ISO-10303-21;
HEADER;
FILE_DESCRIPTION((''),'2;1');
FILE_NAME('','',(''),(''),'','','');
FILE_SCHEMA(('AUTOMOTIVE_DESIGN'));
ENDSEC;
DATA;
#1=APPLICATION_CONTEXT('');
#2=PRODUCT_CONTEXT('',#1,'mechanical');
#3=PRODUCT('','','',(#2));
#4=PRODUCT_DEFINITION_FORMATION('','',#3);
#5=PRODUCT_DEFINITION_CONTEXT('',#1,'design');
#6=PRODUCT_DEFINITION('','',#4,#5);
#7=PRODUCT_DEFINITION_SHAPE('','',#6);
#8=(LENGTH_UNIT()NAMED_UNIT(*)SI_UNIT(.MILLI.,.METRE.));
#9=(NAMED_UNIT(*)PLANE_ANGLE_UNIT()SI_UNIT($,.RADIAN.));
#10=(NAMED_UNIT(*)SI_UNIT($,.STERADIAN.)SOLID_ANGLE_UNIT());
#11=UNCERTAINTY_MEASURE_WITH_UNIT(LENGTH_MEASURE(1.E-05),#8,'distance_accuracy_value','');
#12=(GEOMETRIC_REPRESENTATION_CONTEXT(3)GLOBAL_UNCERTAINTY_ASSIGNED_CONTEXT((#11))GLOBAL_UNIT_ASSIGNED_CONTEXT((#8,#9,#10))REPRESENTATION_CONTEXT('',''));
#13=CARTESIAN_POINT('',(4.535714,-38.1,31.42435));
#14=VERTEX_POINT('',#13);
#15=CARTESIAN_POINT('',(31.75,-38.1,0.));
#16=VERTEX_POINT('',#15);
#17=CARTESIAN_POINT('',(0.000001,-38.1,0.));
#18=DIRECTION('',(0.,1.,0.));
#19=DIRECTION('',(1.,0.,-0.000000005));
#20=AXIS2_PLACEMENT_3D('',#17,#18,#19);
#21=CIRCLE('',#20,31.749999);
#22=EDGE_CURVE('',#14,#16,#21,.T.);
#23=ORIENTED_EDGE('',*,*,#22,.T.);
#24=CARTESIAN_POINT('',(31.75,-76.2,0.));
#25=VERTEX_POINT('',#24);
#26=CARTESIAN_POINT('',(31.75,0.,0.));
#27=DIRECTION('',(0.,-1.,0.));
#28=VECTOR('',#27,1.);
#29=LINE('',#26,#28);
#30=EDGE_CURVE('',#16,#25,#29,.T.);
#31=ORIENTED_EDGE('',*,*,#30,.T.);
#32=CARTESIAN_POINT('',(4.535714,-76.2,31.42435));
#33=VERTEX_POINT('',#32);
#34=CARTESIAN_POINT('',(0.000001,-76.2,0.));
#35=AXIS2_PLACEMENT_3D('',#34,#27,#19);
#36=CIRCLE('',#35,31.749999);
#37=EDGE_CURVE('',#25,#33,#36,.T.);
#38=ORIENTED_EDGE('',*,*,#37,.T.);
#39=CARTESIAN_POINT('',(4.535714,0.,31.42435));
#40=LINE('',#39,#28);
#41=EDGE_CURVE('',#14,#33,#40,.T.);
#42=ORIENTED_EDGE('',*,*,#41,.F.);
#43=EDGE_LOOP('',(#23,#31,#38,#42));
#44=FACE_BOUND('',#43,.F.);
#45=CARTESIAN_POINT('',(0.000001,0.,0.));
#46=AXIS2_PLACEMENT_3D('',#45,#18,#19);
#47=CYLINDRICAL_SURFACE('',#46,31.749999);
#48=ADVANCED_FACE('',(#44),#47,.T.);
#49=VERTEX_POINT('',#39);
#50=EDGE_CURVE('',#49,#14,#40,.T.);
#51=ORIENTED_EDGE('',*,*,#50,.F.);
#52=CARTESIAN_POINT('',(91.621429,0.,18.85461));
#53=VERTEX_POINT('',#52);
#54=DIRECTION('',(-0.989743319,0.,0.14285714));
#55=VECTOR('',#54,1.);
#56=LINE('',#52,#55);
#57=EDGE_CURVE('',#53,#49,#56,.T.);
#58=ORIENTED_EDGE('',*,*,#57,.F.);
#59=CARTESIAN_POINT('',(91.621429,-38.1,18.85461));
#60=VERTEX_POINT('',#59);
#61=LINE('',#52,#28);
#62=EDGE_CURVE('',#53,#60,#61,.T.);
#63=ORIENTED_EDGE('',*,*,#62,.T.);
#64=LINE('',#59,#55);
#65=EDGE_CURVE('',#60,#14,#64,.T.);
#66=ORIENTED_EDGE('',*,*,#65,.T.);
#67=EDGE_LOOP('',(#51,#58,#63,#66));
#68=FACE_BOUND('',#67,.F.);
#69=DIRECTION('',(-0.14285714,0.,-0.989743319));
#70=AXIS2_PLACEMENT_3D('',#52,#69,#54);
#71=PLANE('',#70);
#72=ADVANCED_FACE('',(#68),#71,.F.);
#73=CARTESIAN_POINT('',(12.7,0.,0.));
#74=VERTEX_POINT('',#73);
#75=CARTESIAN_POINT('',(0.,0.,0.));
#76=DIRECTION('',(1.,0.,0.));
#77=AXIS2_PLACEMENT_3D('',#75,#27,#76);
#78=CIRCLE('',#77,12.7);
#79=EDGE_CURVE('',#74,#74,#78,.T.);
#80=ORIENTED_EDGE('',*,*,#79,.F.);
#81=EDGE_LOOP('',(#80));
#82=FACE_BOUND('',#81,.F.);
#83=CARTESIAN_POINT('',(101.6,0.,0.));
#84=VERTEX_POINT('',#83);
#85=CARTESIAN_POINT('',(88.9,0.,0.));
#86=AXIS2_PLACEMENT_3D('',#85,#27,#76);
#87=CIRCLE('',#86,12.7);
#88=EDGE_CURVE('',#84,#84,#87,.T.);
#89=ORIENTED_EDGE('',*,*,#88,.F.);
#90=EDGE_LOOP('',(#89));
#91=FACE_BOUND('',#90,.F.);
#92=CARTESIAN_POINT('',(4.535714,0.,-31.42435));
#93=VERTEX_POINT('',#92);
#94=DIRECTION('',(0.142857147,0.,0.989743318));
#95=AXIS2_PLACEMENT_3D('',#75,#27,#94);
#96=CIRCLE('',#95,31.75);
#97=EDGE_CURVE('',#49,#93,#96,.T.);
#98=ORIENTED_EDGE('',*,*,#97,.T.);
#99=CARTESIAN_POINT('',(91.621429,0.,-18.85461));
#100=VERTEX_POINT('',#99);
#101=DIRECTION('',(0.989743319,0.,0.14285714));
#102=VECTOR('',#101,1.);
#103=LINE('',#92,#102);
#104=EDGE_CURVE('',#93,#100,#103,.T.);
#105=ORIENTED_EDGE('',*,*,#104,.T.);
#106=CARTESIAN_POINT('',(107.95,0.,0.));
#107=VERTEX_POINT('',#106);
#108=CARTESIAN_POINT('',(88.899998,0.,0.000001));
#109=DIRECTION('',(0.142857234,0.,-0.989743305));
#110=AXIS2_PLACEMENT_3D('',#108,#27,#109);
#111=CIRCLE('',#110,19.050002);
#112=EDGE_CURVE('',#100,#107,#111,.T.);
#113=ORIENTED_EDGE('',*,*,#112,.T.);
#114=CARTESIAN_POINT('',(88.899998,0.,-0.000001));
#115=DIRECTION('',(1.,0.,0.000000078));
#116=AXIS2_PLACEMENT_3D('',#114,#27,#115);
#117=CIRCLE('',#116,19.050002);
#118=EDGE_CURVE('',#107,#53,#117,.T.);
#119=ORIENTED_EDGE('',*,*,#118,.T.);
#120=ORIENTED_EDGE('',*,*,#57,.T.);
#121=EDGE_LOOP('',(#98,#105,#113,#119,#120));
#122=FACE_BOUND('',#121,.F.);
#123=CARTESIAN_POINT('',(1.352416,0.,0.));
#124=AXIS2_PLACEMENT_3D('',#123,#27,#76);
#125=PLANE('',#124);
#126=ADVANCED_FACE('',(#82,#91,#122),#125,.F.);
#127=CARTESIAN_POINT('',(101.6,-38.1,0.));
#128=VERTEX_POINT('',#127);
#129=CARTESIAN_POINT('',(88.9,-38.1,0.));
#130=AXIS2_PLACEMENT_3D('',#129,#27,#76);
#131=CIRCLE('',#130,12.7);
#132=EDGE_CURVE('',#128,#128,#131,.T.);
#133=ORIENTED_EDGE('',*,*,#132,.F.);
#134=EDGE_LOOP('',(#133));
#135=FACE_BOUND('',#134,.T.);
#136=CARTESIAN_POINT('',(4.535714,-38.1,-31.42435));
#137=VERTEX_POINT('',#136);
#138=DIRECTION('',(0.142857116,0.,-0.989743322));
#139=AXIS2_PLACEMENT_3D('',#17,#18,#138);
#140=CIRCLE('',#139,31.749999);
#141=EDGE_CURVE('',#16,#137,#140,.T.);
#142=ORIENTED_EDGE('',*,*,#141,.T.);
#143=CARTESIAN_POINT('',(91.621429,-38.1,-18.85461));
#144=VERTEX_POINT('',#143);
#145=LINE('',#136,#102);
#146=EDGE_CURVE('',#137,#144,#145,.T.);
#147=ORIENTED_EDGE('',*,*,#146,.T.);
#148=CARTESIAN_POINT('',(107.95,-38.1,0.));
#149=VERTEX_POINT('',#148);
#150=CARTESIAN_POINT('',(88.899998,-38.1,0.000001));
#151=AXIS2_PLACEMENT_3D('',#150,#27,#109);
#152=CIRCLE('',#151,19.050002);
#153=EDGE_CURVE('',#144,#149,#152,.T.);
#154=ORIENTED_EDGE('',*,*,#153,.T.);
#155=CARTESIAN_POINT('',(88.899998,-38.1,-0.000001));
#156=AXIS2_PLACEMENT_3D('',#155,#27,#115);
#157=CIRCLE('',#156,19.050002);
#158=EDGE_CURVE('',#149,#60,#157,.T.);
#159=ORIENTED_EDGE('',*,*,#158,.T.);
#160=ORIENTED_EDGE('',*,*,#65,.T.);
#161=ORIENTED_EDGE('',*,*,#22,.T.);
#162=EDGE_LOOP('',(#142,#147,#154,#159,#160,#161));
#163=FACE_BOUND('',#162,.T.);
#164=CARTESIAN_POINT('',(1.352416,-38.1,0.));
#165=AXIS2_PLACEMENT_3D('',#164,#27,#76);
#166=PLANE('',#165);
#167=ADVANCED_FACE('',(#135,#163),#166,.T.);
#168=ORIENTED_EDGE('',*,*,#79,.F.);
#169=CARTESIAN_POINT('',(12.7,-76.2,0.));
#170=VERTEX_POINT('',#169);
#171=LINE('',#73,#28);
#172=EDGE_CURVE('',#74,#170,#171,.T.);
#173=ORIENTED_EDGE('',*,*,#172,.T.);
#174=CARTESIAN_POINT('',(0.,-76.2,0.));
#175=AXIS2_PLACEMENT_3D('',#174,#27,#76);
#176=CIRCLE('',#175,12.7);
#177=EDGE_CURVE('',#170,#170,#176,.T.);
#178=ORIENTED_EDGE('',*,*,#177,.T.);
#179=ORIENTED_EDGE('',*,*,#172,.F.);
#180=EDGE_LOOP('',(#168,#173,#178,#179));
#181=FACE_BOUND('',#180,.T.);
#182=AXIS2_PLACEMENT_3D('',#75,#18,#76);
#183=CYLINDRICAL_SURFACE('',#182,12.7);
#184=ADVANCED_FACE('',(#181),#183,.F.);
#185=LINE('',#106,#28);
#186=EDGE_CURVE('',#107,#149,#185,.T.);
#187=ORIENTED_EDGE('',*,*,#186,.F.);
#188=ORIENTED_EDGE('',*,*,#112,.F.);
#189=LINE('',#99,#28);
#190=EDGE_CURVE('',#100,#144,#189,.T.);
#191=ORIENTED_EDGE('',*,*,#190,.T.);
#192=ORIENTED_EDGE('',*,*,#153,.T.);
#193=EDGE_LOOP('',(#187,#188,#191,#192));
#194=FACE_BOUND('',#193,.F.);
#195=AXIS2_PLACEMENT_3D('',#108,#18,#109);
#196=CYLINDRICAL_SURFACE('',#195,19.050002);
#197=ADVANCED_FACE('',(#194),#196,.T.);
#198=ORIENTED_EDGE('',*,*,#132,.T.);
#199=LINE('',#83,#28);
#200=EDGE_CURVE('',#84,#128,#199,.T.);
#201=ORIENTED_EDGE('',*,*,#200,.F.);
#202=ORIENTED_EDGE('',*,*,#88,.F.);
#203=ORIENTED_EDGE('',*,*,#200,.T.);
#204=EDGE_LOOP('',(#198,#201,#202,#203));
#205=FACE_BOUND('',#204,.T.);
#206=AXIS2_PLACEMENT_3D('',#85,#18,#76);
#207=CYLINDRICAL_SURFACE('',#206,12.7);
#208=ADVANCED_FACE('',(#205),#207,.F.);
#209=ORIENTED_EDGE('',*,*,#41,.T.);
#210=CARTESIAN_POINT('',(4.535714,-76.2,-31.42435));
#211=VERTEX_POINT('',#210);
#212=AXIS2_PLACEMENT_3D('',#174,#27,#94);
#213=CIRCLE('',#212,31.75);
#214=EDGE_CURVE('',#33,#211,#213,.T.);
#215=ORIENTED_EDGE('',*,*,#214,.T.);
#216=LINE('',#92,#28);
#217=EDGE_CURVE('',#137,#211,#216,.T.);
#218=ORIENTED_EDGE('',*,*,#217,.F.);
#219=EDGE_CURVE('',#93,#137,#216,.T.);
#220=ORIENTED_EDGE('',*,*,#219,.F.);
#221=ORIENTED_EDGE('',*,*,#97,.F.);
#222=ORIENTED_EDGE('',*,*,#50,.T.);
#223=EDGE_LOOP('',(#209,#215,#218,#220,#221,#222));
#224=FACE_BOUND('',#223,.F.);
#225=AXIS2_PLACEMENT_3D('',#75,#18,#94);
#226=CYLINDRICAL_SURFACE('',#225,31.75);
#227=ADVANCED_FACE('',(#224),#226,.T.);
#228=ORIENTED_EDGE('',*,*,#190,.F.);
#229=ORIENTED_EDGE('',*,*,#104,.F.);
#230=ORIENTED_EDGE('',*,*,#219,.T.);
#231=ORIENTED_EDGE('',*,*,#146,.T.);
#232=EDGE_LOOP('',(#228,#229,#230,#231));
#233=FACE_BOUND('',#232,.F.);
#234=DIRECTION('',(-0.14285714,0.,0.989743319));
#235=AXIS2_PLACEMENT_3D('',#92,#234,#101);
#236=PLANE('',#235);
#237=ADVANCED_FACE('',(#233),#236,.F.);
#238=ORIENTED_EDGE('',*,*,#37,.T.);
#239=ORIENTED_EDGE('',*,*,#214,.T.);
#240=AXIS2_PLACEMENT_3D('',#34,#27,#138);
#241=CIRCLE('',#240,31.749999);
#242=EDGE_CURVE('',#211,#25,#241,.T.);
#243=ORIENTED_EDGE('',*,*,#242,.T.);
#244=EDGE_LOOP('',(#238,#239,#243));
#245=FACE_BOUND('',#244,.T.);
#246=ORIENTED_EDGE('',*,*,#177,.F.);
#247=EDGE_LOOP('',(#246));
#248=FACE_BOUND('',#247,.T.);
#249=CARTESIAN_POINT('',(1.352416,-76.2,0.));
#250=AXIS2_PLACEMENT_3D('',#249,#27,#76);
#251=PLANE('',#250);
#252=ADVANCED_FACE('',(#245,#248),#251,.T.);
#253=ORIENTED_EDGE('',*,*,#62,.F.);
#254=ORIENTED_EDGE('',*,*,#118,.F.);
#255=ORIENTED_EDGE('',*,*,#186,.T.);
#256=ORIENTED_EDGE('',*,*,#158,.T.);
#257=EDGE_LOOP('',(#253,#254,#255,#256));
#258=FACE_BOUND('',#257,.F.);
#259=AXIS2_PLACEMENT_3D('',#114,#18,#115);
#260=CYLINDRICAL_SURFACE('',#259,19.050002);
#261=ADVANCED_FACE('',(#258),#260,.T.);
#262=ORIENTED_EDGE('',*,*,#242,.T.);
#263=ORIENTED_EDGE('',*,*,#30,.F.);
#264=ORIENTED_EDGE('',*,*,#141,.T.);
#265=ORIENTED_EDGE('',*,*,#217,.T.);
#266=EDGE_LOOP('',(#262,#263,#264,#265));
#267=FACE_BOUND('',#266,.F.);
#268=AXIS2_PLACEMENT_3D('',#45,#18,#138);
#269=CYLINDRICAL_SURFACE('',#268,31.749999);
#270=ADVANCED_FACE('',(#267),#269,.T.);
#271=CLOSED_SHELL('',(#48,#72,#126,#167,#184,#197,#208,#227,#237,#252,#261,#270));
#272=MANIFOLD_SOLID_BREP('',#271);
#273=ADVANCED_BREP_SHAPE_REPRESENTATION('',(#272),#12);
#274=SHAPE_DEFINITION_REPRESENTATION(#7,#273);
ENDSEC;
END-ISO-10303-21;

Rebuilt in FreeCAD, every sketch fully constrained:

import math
import FreeCAD as App
import Part
import Sketcher
from FreeCAD import Vector
Q = App.Units.Quantity

doc = App.newDocument("Part")
body = doc.addObject("PartDesign::Body", "Body")

# Sketch on XZ plane
sketch1 = doc.addObject("Sketcher::SketchObject", "Sketch")
body.addObject(sketch1)
sketch1.AttachmentSupport = (doc.XZ_Plane, [""])
sketch1.MapMode = "FlatFace"
sketch1.addGeometry([
    Part.ArcOfCircle(Part.Circle(Vector(0, 0, 0), Vector(0, 0, 1), 32), math.radians(82), math.radians(278)),  # 0
    Part.LineSegment(Vector(5, -31, 0), Vector(92, -19, 0)),  # 1
    Part.ArcOfCircle(Part.Circle(Vector(89, 0, 0), Vector(0, 0, 1), 19), math.radians(-82), math.radians(0)),  # 2
    Part.ArcOfCircle(Part.Circle(Vector(89, 0, 0), Vector(0, 0, 1), 19), math.radians(0), math.radians(82)),  # 3
    Part.LineSegment(Vector(92, 19, 0), Vector(5, 31, 0)),  # 4
    Part.Circle(Vector(0, 0, 0), Vector(0, 0, 1), 13),  # 5
    Part.Circle(Vector(89, 0, 0), Vector(0, 0, 1), 13),  # 6
], False)
sketch1.addConstraint([
    Sketcher.Constraint("Tangent", 0, 2, 1, 1),
    Sketcher.Constraint("Tangent", 1, 2, 2, 1),
    Sketcher.Constraint("Tangent", 2, 2, 3, 1),
    Sketcher.Constraint("Tangent", 3, 2, 4, 1),
    Sketcher.Constraint("Tangent", 4, 2, 0, 1),
    Sketcher.Constraint("Coincident", 0, 3, -1, 1),
    Sketcher.Constraint("Coincident", 5, 3, -1, 1),
    Sketcher.Constraint("Coincident", 6, 3, 2, 3),
    Sketcher.Constraint("Equal", 2, 3),
    Sketcher.Constraint("Equal", 5, 6),
    Sketcher.Constraint("PointOnObject", 2, 3, -1),
    Sketcher.Constraint("PointOnObject", 2, 2, -1),
    Sketcher.Constraint("Diameter", 5, Q("1 in")),
    Sketcher.Constraint("Radius", 0, Q("1.25 in")),
    Sketcher.Constraint("Radius", 2, Q("0.7500001 in")),
    Sketcher.Constraint("DistanceX", -1, 1, 2, 3, Q("3.4999999 in")),
])
pad1 = doc.addObject("PartDesign::Pad", "Pad")
body.addObject(pad1)
pad1.Profile = sketch1
pad1.Length = Q("1.5 in")

# Sketch on XZ plane
sketch2 = doc.addObject("Sketcher::SketchObject", "Sketch001")
body.addObject(sketch2)
sketch2.AttachmentSupport = (doc.XZ_Plane, [""])
sketch2.MapMode = "FlatFace"
sketch2.addGeometry([
    Part.ArcOfCircle(Part.Circle(Vector(0, 0, 0), Vector(0, 0, 1), 32), math.radians(-82), math.radians(0)),
    Part.ArcOfCircle(Part.Circle(Vector(0, 0, 0), Vector(0, 0, 1), 32), math.radians(0), math.radians(82)),
    Part.ArcOfCircle(Part.Circle(Vector(0, 0, 0), Vector(0, 0, 1), 32), math.radians(82), math.radians(278)),
    Part.Circle(Vector(0, 0, 0), Vector(0, 0, 1), 13),
], False)
sketch2.addConstraint([
    Sketcher.Constraint("Tangent", 0, 2, 1, 1),
    Sketcher.Constraint("Tangent", 1, 2, 2, 1),
    Sketcher.Constraint("Tangent", 2, 2, 0, 1),
    Sketcher.Constraint("Coincident", 0, 3, -1, 1),
    Sketcher.Constraint("Coincident", 3, 3, -1, 1),
    Sketcher.Constraint("PointOnObject", 0, 2, -1),
    Sketcher.Constraint("Vertical", 1, 2, 2, 2),
    Sketcher.Constraint("Diameter", 3, Q("1 in")),
    Sketcher.Constraint("Radius", 0, Q("1.25 in")),
    Sketcher.Constraint("DistanceY", -1, 1, 1, 2, 31.42435),
])
pad2 = doc.addObject("PartDesign::Pad", "Pad001")
body.addObject(pad2)
pad2.Profile = sketch2
pad2.Length = Q("3 in")

doc.recompute()
